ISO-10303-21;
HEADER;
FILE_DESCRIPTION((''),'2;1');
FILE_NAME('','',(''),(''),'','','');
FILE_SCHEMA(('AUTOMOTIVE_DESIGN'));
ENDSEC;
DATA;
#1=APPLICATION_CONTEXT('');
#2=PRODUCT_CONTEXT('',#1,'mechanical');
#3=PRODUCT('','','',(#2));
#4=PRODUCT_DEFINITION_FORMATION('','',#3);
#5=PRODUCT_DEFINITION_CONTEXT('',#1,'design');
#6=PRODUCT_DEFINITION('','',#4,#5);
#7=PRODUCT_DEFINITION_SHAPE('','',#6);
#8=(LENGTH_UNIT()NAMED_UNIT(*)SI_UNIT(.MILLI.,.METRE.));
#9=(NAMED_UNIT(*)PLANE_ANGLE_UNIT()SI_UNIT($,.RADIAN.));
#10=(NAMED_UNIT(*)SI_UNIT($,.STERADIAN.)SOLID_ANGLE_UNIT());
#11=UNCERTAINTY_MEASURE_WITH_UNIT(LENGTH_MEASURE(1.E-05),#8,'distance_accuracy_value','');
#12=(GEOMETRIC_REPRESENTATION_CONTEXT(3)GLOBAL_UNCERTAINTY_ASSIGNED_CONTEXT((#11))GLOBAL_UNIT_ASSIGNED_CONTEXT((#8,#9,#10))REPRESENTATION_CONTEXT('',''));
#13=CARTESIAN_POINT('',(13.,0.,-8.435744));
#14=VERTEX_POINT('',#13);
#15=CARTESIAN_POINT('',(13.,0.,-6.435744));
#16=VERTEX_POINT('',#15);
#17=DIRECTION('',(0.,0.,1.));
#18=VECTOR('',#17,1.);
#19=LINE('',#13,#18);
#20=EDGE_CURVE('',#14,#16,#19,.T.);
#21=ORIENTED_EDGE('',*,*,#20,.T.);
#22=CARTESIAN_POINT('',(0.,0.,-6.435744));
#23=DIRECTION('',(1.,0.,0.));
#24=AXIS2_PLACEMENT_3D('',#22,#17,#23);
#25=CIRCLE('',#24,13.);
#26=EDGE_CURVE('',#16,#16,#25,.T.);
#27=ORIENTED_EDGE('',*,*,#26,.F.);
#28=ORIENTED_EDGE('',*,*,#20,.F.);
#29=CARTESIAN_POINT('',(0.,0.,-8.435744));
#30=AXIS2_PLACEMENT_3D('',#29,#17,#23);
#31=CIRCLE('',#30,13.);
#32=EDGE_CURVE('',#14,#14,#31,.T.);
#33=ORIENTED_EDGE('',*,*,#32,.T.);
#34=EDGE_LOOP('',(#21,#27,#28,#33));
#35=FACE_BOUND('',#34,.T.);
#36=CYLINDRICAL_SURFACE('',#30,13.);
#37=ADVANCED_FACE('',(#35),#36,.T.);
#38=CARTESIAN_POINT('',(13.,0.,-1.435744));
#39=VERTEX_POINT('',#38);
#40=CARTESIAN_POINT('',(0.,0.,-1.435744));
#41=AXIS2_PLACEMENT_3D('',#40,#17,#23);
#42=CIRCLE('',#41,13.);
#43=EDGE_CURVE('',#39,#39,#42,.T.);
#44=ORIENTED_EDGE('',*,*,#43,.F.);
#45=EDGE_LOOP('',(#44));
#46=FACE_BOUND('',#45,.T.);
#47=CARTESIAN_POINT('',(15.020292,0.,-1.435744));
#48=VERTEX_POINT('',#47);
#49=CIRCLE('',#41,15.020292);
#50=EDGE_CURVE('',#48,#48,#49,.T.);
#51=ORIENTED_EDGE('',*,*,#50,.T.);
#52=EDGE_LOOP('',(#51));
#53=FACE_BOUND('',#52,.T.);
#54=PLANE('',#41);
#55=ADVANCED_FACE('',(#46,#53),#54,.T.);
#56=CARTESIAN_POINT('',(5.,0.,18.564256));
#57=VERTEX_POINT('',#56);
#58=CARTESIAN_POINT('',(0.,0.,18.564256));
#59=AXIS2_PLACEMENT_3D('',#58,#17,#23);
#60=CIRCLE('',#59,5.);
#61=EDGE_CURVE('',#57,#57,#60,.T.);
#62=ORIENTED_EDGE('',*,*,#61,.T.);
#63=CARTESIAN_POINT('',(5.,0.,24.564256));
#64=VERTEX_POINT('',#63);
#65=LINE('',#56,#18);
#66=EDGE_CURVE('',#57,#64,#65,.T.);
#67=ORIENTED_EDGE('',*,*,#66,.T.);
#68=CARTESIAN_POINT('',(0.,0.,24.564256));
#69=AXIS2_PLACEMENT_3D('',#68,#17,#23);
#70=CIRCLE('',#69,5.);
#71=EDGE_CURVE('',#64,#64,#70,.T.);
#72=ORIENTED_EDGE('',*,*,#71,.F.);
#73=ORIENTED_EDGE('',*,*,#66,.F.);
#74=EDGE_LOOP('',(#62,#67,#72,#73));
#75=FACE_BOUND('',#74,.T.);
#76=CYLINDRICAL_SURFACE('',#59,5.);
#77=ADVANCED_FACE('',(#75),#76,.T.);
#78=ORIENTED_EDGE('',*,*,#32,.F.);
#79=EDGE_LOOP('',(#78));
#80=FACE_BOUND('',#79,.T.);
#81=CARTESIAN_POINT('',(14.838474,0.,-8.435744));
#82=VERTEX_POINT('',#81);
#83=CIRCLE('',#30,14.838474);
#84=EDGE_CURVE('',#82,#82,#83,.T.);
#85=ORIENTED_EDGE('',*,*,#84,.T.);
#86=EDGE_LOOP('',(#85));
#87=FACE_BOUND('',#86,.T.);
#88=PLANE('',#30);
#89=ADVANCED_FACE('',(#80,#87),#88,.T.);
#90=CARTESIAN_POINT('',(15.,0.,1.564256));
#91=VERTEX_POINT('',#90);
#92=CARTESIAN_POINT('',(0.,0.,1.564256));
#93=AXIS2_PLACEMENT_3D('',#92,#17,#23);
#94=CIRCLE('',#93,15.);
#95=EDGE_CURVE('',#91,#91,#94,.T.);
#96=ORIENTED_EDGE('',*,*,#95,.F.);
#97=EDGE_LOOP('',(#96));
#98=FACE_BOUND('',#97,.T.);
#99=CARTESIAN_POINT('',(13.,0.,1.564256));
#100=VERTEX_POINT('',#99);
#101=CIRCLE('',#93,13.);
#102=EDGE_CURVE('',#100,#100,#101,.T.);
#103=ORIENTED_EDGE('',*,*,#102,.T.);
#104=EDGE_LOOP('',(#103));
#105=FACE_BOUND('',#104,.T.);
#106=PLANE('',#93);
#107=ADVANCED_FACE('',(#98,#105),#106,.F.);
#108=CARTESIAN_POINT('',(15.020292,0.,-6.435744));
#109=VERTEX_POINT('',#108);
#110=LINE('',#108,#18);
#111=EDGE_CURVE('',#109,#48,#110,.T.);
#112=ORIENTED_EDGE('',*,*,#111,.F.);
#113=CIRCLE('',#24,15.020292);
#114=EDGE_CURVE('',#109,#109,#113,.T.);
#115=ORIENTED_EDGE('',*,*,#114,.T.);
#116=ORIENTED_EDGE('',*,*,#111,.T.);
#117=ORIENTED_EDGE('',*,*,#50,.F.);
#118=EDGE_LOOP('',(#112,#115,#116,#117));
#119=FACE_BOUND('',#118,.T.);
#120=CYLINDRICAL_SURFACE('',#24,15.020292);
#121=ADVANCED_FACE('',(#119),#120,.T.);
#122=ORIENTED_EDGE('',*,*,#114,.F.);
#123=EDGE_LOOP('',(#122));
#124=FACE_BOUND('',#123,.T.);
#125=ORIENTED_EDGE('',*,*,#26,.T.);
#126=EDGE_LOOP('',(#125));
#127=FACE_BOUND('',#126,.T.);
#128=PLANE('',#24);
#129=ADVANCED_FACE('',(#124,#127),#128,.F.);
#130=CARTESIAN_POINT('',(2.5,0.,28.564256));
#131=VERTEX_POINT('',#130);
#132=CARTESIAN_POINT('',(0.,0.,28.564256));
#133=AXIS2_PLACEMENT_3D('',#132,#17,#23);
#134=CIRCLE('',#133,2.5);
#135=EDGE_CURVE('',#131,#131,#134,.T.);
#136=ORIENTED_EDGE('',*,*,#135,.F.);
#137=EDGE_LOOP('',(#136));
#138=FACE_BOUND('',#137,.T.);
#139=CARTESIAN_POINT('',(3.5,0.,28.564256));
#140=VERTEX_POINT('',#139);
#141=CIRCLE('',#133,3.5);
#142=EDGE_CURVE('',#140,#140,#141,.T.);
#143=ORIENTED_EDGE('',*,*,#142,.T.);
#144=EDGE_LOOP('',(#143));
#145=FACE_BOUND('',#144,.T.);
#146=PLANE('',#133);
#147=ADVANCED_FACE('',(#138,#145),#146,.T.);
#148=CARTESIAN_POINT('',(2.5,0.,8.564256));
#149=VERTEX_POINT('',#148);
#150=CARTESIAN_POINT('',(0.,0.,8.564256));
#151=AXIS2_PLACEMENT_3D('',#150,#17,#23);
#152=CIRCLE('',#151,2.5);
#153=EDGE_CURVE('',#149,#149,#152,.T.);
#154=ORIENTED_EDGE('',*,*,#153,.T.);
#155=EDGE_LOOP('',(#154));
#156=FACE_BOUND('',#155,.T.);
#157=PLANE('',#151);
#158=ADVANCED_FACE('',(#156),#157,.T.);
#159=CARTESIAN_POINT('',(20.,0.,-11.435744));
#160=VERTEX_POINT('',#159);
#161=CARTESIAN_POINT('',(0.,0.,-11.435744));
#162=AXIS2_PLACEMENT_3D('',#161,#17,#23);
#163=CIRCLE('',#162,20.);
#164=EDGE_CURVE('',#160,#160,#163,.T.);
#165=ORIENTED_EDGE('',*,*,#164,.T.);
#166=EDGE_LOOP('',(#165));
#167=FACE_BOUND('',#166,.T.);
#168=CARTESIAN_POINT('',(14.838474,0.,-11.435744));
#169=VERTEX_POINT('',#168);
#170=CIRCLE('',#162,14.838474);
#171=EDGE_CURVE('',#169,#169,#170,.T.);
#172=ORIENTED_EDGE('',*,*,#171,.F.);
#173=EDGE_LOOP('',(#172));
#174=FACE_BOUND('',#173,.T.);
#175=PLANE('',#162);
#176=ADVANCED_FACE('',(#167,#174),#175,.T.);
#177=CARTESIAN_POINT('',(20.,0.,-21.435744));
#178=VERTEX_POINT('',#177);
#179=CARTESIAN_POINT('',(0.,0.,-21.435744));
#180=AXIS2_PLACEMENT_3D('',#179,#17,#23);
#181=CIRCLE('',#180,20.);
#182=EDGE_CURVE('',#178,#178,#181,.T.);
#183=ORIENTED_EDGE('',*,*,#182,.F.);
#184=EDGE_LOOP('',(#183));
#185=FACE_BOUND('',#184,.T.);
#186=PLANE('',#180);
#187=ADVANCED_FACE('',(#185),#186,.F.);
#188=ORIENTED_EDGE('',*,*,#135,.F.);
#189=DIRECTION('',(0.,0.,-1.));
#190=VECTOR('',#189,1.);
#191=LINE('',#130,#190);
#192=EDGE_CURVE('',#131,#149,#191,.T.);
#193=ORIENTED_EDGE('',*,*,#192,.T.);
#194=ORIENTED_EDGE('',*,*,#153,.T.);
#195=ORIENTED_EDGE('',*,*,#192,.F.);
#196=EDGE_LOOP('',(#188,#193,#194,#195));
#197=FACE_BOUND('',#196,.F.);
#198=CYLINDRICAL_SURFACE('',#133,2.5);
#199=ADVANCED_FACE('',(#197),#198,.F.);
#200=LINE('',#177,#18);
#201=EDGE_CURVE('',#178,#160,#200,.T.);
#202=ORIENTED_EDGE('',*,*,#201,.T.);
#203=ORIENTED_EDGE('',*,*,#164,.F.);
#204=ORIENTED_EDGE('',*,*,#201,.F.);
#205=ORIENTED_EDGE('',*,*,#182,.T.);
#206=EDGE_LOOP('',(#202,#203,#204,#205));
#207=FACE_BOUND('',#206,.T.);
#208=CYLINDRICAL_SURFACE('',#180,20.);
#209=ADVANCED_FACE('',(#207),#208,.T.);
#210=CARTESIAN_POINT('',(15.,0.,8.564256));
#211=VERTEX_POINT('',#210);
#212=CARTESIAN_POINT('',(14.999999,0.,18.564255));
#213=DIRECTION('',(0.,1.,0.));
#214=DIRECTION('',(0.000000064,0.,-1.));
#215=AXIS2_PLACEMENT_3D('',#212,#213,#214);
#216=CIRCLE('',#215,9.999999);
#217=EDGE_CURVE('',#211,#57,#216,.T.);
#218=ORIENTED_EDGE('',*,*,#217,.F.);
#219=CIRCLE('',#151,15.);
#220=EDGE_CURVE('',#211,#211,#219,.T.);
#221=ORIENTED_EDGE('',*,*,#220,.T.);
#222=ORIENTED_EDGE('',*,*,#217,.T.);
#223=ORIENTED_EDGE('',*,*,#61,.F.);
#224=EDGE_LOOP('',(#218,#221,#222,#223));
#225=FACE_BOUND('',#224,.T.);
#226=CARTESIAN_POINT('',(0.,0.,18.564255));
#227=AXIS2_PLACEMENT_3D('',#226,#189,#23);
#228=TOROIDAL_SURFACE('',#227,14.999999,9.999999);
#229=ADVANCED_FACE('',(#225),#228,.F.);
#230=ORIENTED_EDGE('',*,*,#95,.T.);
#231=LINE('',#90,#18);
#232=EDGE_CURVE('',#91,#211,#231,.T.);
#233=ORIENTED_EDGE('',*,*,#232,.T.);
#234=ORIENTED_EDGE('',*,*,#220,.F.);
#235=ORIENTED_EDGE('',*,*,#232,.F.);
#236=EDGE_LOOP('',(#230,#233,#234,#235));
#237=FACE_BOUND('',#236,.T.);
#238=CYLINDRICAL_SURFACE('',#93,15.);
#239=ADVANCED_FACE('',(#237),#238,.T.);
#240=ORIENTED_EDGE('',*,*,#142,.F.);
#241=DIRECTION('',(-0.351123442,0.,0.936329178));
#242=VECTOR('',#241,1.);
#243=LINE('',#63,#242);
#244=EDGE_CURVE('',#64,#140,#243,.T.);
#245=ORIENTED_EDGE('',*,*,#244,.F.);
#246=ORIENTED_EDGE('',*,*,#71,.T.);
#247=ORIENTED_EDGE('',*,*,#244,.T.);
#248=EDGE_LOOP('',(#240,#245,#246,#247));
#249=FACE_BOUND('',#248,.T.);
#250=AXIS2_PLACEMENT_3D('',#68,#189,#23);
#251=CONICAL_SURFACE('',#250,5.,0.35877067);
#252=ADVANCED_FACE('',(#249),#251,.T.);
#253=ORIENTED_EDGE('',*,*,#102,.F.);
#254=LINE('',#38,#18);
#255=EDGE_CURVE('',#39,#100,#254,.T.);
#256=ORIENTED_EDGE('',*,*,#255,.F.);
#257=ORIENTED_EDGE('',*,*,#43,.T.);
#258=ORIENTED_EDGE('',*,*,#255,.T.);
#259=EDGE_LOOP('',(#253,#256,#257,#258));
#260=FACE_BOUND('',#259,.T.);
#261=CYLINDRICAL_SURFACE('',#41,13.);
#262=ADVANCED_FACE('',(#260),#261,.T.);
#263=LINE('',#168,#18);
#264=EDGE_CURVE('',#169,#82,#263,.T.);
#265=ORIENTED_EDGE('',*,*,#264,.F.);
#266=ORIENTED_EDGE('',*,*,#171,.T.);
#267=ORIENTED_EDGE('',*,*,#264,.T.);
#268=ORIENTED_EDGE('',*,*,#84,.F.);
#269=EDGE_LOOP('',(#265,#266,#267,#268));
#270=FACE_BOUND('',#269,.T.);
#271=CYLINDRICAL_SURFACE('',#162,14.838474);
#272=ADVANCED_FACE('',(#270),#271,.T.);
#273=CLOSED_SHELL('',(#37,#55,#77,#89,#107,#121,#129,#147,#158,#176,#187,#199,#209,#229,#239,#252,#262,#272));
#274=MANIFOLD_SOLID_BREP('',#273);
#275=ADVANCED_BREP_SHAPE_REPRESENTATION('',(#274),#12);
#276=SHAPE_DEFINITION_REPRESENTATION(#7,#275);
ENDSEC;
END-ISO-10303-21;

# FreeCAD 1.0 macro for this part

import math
import FreeCAD as App
import Part
import Sketcher

V = App.Vector
Q = App.Units.Quantity

doc = App.newDocument("Part")
body = doc.addObject("PartDesign::Body", "Body")

# Sketch on XZ plane
sketch1 = body.newObject("Sketcher::SketchObject", "Sketch")
sketch1.AttachmentSupport = (doc.getObject("XZ_Plane"), [""])
sketch1.MapMode = "FlatFace"
sketch1.addGeometry([
    Part.LineSegment(V(0, -21.4, 0), V(20, -21.4, 0)),  # 0
    Part.LineSegment(V(20, -21.4, 0), V(20, -11.4, 0)),  # 1
    Part.LineSegment(V(20, -11.4, 0), V(14.8, -11.4, 0)),  # 2
    Part.LineSegment(V(14.8, -11.4, 0), V(14.8, -8.4, 0)),  # 3
    Part.LineSegment(V(14.8, -8.4, 0), V(13, -8.4, 0)),  # 4
    Part.LineSegment(V(13, -8.4, 0), V(13, -6.4, 0)),  # 5
    Part.LineSegment(V(13, -6.4, 0), V(15, -6.4, 0)),  # 6
    Part.LineSegment(V(15, -6.4, 0), V(15, -1.4, 0)),  # 7
    Part.LineSegment(V(15, -1.4, 0), V(13, -1.4, 0)),  # 8
    Part.LineSegment(V(13, -1.4, 0), V(13, 1.6, 0)),  # 9
    Part.LineSegment(V(13, 1.6, 0), V(15, 1.6, 0)),  # 10
    Part.LineSegment(V(15, 1.6, 0), V(15, 8.6, 0)),  # 11
    Part.ArcOfCircle(Part.Circle(V(15, 18.6, 0), V(0, 0, 1), 10), math.radians(180), math.radians(270)),  # 12
    Part.LineSegment(V(5, 18.6, 0), V(5, 24.6, 0)),  # 13
    Part.LineSegment(V(5, 24.6, 0), V(3.5, 28.6, 0)),  # 14
    Part.LineSegment(V(3.5, 28.6, 0), V(0, 28.6, 0)),  # 15
    Part.LineSegment(V(0, 28.6, 0), V(0, -21.4, 0)),  # 16
], False)
sketch1.addConstraint([
    Sketcher.Constraint("Coincident", 0, 2, 1, 1),
    Sketcher.Constraint("Coincident", 1, 2, 2, 1),
    Sketcher.Constraint("Coincident", 2, 2, 3, 1),
    Sketcher.Constraint("Coincident", 3, 2, 4, 1),
    Sketcher.Constraint("Coincident", 4, 2, 5, 1),
    Sketcher.Constraint("Coincident", 5, 2, 6, 1),
    Sketcher.Constraint("Coincident", 6, 2, 7, 1),
    Sketcher.Constraint("Coincident", 7, 2, 8, 1),
    Sketcher.Constraint("Coincident", 8, 2, 9, 1),
    Sketcher.Constraint("Coincident", 9, 2, 10, 1),
    Sketcher.Constraint("Coincident", 10, 2, 11, 1),
    Sketcher.Constraint("Coincident", 11, 2, 12, 2),
    Sketcher.Constraint("Tangent", 12, 1, 13, 1),
    Sketcher.Constraint("Coincident", 13, 2, 14, 1),
    Sketcher.Constraint("Coincident", 14, 2, 15, 1),
    Sketcher.Constraint("Coincident", 15, 2, 16, 1),
    Sketcher.Constraint("Coincident", 16, 2, 0, 1),
    Sketcher.Constraint("Horizontal", 0),
    Sketcher.Constraint("Vertical", 1),
    Sketcher.Constraint("Horizontal", 2),
    Sketcher.Constraint("Vertical", 3),
    Sketcher.Constraint("Horizontal", 4),
    Sketcher.Constraint("Vertical", 5),
    Sketcher.Constraint("Horizontal", 6),
    Sketcher.Constraint("Vertical", 7),
    Sketcher.Constraint("Horizontal", 8),
    Sketcher.Constraint("Vertical", 9),
    Sketcher.Constraint("Horizontal", 10),
    Sketcher.Constraint("Vertical", 11),
    Sketcher.Constraint("Vertical", 13),
    Sketcher.Constraint("Horizontal", 15),
    Sketcher.Constraint("Vertical", 16),
    Sketcher.Constraint("PointOnObject", 15, 2, -2),
    Sketcher.Constraint("Vertical", 5, 2, 8, 2),
    Sketcher.Constraint("Vertical", 12, 3, 10, 2),
    Sketcher.Constraint("Equal", 10, 5),
    Sketcher.Constraint("Equal", 3, 9),
    Sketcher.Constraint("Radius", 12, Q("9.999999 mm")),
    Sketcher.Constraint("DistanceX", 0, 1, 0, 2, Q("20 mm")),
    Sketcher.Constraint("DistanceX", 10, 1, 10, 2, Q("2 mm")),
    Sketcher.Constraint("DistanceY", 1, 1, 1, 2, Q("10 mm")),
    Sketcher.Constraint("DistanceY", 3, 1, 3, 2, Q("3 mm")),
    Sketcher.Constraint("DistanceY", 7, 1, 7, 2, Q("5 mm")),
    Sketcher.Constraint("DistanceY", 11, 1, 11, 2, Q("7 mm")),
    Sketcher.Constraint("DistanceY", 13, 1, 13, 2, Q("6 mm")),
    Sketcher.Constraint("DistanceY", 16, 2, 16, 1, Q("50 mm")),
    Sketcher.Constraint("DistanceX", 15, 2, 15, 1, Q("3.5 mm")),
    Sketcher.Constraint("DistanceX", -1, 1, 12, 3, Q("14.999999 mm")),
    Sketcher.Constraint("DistanceX", 6, 1, 6, 2, Q("2.020292 mm")),
    Sketcher.Constraint("DistanceX", 2, 2, 2, 1, Q("5.161526 mm")),
    Sketcher.Constraint("DistanceY", -1, 1, 12, 3, Q("18.564255 mm")),
])
revolution = body.newObject("PartDesign::Revolution", "Revolution")
revolution.Profile = sketch1
revolution.ReferenceAxis = (sketch1, ["V_Axis"])
revolution.Angle = 360

# Sketch on XY plane
sketch2 = body.newObject("Sketcher::SketchObject", "Sketch001")
sketch2.AttachmentSupport = (doc.getObject("XY_Plane"), [""])
sketch2.MapMode = "FlatFace"
sketch2.AttachmentOffset = App.Placement(V(0, 0, 28.564256), App.Rotation())
sketch2.addGeometry(Part.Circle(V(0, 0, 0), V(0, 0, 1), 2.5), False)
sketch2.addConstraint([
    Sketcher.Constraint("Coincident", 0, 3, -1, 1),
    Sketcher.Constraint("Diameter", 0, Q("5 mm")),
])
pocket1 = body.newObject("PartDesign::Pocket", "Pocket")
pocket1.Profile = sketch2
pocket1.Length = 20

doc.recompute()
